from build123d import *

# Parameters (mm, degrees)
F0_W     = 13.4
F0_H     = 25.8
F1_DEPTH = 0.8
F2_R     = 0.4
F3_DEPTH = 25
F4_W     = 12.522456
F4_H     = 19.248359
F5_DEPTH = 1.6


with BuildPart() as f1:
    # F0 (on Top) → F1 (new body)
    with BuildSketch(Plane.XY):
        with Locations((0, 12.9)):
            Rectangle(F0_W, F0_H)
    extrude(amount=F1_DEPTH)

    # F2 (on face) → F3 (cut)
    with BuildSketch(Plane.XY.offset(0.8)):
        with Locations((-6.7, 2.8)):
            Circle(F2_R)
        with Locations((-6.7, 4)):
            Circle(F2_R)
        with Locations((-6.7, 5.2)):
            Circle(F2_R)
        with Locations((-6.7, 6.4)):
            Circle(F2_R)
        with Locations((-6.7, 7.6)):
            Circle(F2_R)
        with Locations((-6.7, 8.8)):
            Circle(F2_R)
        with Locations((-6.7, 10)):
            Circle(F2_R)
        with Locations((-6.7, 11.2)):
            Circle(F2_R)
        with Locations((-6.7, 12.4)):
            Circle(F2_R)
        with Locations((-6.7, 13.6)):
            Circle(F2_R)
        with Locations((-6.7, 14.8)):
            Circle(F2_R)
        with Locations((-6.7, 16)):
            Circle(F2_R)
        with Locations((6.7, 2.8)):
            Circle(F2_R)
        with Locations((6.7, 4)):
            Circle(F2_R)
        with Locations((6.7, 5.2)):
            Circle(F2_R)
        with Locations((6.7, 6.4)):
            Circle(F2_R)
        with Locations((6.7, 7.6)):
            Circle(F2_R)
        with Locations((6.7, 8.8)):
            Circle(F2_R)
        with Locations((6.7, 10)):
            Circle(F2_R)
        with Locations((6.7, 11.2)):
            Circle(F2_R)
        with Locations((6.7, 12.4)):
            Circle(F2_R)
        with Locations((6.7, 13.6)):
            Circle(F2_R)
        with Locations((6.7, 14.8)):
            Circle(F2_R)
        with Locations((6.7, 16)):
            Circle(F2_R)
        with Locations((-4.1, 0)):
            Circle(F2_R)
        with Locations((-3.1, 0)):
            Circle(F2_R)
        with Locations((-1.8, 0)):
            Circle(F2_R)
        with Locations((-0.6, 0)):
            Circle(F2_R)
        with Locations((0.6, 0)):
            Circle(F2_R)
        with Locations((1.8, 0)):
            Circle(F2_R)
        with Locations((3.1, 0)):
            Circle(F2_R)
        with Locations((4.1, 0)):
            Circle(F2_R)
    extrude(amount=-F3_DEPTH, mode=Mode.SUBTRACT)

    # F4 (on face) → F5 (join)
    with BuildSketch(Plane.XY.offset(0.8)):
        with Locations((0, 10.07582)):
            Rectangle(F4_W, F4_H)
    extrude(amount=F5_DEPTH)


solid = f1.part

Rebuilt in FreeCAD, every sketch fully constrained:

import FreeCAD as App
import Part
import Sketcher
Q = App.Units.Quantity

doc = App.newDocument("Part")
params = doc.addObject("Spreadsheet::Sheet", "Params")
for row, (alias, value) in enumerate([
    ("sketch1_width", "13.4 mm"),
    ("sketch1_height", "25.8 mm"),
    ("pad1_length", "0.8 mm"),
    ("sketch2_diameter", "0.8 mm"),
    ("pocket1_length", "25 mm"),
    ("pad2_length", "1.6 mm"),
], start=1):
    params.set(f"A{row}", alias)
    params.set(f"B{row}", "=" + value)
    params.setAlias(f"B{row}", alias)

body = doc.addObject("PartDesign::Body", "Body")

# Sketch on XY plane
sketch1 = doc.addObject("Sketcher::SketchObject", "Sketch")
body.addObject(sketch1)
sketch1.AttachmentSupport = (doc.XY_Plane, [""])
sketch1.MapMode = "FlatFace"
sketch1.addGeometry(Part.LineSegment(App.Vector(-7, 26, 0), App.Vector(-7, 0, 0)), False)
sketch1.addGeometry(Part.LineSegment(App.Vector(-7, 0, 0), App.Vector(7, 0, 0)), False)
sketch1.addGeometry(Part.LineSegment(App.Vector(7, 0, 0), App.Vector(7, 26, 0)), False)
sketch1.addGeometry(Part.LineSegment(App.Vector(7, 26, 0), App.Vector(-7, 26, 0)), False)
sketch1.addConstraint(Sketcher.Constraint("Coincident", 0, 2, 1, 1))
sketch1.addConstraint(Sketcher.Constraint("Coincident", 1, 2, 2, 1))
sketch1.addConstraint(Sketcher.Constraint("Coincident", 2, 2, 3, 1))
sketch1.addConstraint(Sketcher.Constraint("Coincident", 3, 2, 0, 1))
sketch1.addConstraint(Sketcher.Constraint("Vertical", 0))
sketch1.addConstraint(Sketcher.Constraint("Horizontal", 1))
sketch1.addConstraint(Sketcher.Constraint("Vertical", 2))
sketch1.addConstraint(Sketcher.Constraint("Horizontal", 3))
sketch1.addConstraint(Sketcher.Constraint("Symmetric", 0, 2, 1, 2, -1, 1))
sketch1.addConstraint(Sketcher.Constraint("DistanceX", 1, 1, 1, 2, Q("13.4 mm")))
sketch1.addConstraint(Sketcher.Constraint("DistanceY", 0, 2, 0, 1, Q("25.8 mm")))
sketch1.setExpression("Constraints[9]", "Params.sketch1_width")
sketch1.setExpression("Constraints[10]", "Params.sketch1_height")
pad1 = doc.addObject("PartDesign::Pad", "Pad")
body.addObject(pad1)
pad1.Profile = sketch1
pad1.setExpression("Length", "Params.pad1_length")

# Sketch on XY plane
sketch2 = doc.addObject("Sketcher::SketchObject", "Sketch001")
body.addObject(sketch2)
sketch2.AttachmentSupport = (doc.XY_Plane, [""])
sketch2.MapMode = "FlatFace"
sketch2.AttachmentOffset = App.Placement(App.Vector(0, 0, 0.8), App.Rotation())
sketch2.addGeometry(Part.Circle(App.Vector(-6.7, 2.8, 0), App.Vector(0, 0, 1), 0.4), False)
sketch2.addGeometry(Part.Circle(App.Vector(-6.7, 4, 0), App.Vector(0, 0, 1), 0.4), False)
sketch2.addGeometry(Part.Circle(App.Vector(-6.7, 5.2, 0), App.Vector(0, 0, 1), 0.4), False)
sketch2.addGeometry(Part.Circle(App.Vector(-6.7, 6.4, 0), App.Vector(0, 0, 1), 0.4), False)
sketch2.addGeometry(Part.Circle(App.Vector(-6.7, 7.6, 0), App.Vector(0, 0, 1), 0.4), False)
sketch2.addGeometry(Part.Circle(App.Vector(-6.7, 8.8, 0), App.Vector(0, 0, 1), 0.4), False)
sketch2.addGeometry(Part.Circle(App.Vector(-6.7, 10, 0), App.Vector(0, 0, 1), 0.4), False)
sketch2.addGeometry(Part.Circle(App.Vector(-6.7, 11.2, 0), App.Vector(0, 0, 1), 0.4), False)
sketch2.addGeometry(Part.Circle(App.Vector(-6.7, 12.4, 0), App.Vector(0, 0, 1), 0.4), False)
sketch2.addGeometry(Part.Circle(App.Vector(-6.7, 13.6, 0), App.Vector(0, 0, 1), 0.4), False)
sketch2.addGeometry(Part.Circle(App.Vector(-6.7, 14.8, 0), App.Vector(0, 0, 1), 0.4), False)
sketch2.addGeometry(Part.Circle(App.Vector(-6.7, 16, 0), App.Vector(0, 0, 1), 0.4), False)
sketch2.addGeometry(Part.Circle(App.Vector(6.7, 2.8, 0), App.Vector(0, 0, 1), 0.4), False)
sketch2.addGeometry(Part.Circle(App.Vector(6.7, 4, 0), App.Vector(0, 0, 1), 0.4), False)
sketch2.addGeometry(Part.Circle(App.Vector(6.7, 5.2, 0), App.Vector(0, 0, 1), 0.4), False)
sketch2.addGeometry(Part.Circle(App.Vector(6.7, 6.4, 0), App.Vector(0, 0, 1), 0.4), False)
sketch2.addGeometry(Part.Circle(App.Vector(6.7, 7.6, 0), App.Vector(0, 0, 1), 0.4), False)
sketch2.addGeometry(Part.Circle(App.Vector(6.7, 8.8, 0), App.Vector(0, 0, 1), 0.4), False)
sketch2.addGeometry(Part.Circle(App.Vector(6.7, 10, 0), App.Vector(0, 0, 1), 0.4), False)
sketch2.addGeometry(Part.Circle(App.Vector(6.7, 11.2, 0), App.Vector(0, 0, 1), 0.4), False)
sketch2.addGeometry(Part.Circle(App.Vector(6.7, 12.4, 0), App.Vector(0, 0, 1), 0.4), False)
sketch2.addGeometry(Part.Circle(App.Vector(6.7, 13.6, 0), App.Vector(0, 0, 1), 0.4), False)
sketch2.addGeometry(Part.Circle(App.Vector(6.7, 14.8, 0), App.Vector(0, 0, 1), 0.4), False)
sketch2.addGeometry(Part.Circle(App.Vector(6.7, 16, 0), App.Vector(0, 0, 1), 0.4), False)
sketch2.addGeometry(Part.Circle(App.Vector(-4.1, 0, 0), App.Vector(0, 0, 1), 0.4), False)
sketch2.addGeometry(Part.Circle(App.Vector(-3.1, 0, 0), App.Vector(0, 0, 1), 0.4), False)
sketch2.addGeometry(Part.Circle(App.Vector(-1.8, 0, 0), App.Vector(0, 0, 1), 0.4), False)
sketch2.addGeometry(Part.Circle(App.Vector(-0.6, 0, 0), App.Vector(0, 0, 1), 0.4), False)
sketch2.addGeometry(Part.Circle(App.Vector(0.6, 0, 0), App.Vector(0, 0, 1), 0.4), False)
sketch2.addGeometry(Part.Circle(App.Vector(1.8, 0, 0), App.Vector(0, 0, 1), 0.4), False)
sketch2.addGeometry(Part.Circle(App.Vector(3.1, 0, 0), App.Vector(0, 0, 1), 0.4), False)
sketch2.addGeometry(Part.Circle(App.Vector(4.1, 0, 0), App.Vector(0, 0, 1), 0.4), False)
sketch2.addConstraint(Sketcher.Constraint("Equal", 0, 1))
sketch2.addConstraint(Sketcher.Constraint("Equal", 1, 2))
sketch2.addConstraint(Sketcher.Constraint("Equal", 2, 3))
sketch2.addConstraint(Sketcher.Constraint("Equal", 3, 4))
sketch2.addConstraint(Sketcher.Constraint("Equal", 4, 5))
sketch2.addConstraint(Sketcher.Constraint("Equal", 5, 6))
sketch2.addConstraint(Sketcher.Constraint("Equal", 6, 7))
sketch2.addConstraint(Sketcher.Constraint("Equal", 7, 8))
sketch2.addConstraint(Sketcher.Constraint("Equal", 8, 9))
sketch2.addConstraint(Sketcher.Constraint("Equal", 9, 10))
sketch2.addConstraint(Sketcher.Constraint("Equal", 10, 11))
sketch2.addConstraint(Sketcher.Constraint("Equal", 11, 12))
sketch2.addConstraint(Sketcher.Constraint("Equal", 12, 13))
sketch2.addConstraint(Sketcher.Constraint("Equal", 13, 14))
sketch2.addConstraint(Sketcher.Constraint("Equal", 14, 15))
sketch2.addConstraint(Sketcher.Constraint("Equal", 15, 16))
sketch2.addConstraint(Sketcher.Constraint("Equal", 16, 17))
sketch2.addConstraint(Sketcher.Constraint("Equal", 17, 18))
sketch2.addConstraint(Sketcher.Constraint("Equal", 18, 19))
sketch2.addConstraint(Sketcher.Constraint("Equal", 19, 20))
sketch2.addConstraint(Sketcher.Constraint("Equal", 20, 21))
sketch2.addConstraint(Sketcher.Constraint("Equal", 21, 22))
sketch2.addConstraint(Sketcher.Constraint("Equal", 22, 23))
sketch2.addConstraint(Sketcher.Constraint("Equal", 23, 24))
sketch2.addConstraint(Sketcher.Constraint("Equal", 24, 25))
sketch2.addConstraint(Sketcher.Constraint("Equal", 25, 26))
sketch2.addConstraint(Sketcher.Constraint("Equal", 26, 27))
sketch2.addConstraint(Sketcher.Constraint("Equal", 27, 28))
sketch2.addConstraint(Sketcher.Constraint("Equal", 28, 29))
sketch2.addConstraint(Sketcher.Constraint("Equal", 29, 30))
sketch2.addConstraint(Sketcher.Constraint("Equal", 30, 31))
sketch2.addConstraint(Sketcher.Constraint("Symmetric", 27, 3, 28, 3, -1, 1))
sketch2.addConstraint(Sketcher.Constraint("Symmetric", 26, 3, 29, 3, -1, 1))
sketch2.addConstraint(Sketcher.Constraint("Symmetric", 25, 3, 30, 3, -1, 1))
sketch2.addConstraint(Sketcher.Constraint("Symmetric", 24, 3, 31, 3, -1, 1))
sketch2.addConstraint(Sketcher.Constraint("Symmetric", 0, 3, 12, 3, -2))
sketch2.addConstraint(Sketcher.Constraint("Symmetric", 1, 3, 13, 3, -2))
sketch2.addConstraint(Sketcher.Constraint("Symmetric", 2, 3, 14, 3, -2))
sketch2.addConstraint(Sketcher.Constraint("Symmetric", 3, 3, 15, 3, -2))
sketch2.addConstraint(Sketcher.Constraint("Symmetric", 4, 3, 16, 3, -2))
sketch2.addConstraint(Sketcher.Constraint("Symmetric", 5, 3, 17, 3, -2))
sketch2.addConstraint(Sketcher.Constraint("Symmetric", 6, 3, 18, 3, -2))
sketch2.addConstraint(Sketcher.Constraint("Symmetric", 7, 3, 19, 3, -2))
sketch2.addConstraint(Sketcher.Constraint("Symmetric", 8, 3, 20, 3, -2))
sketch2.addConstraint(Sketcher.Constraint("Symmetric", 9, 3, 21, 3, -2))
sketch2.addConstraint(Sketcher.Constraint("Symmetric", 10, 3, 22, 3, -2))
sketch2.addConstraint(Sketcher.Constraint("Symmetric", 11, 3, 23, 3, -2))
sketch2.addConstraint(Sketcher.Constraint("PointOnObject", 24, 3, -1))
sketch2.addConstraint(Sketcher.Constraint("PointOnObject", 25, 3, -1))
sketch2.addConstraint(Sketcher.Constraint("PointOnObject", 26, 3, -1))
sketch2.addConstraint(Sketcher.Constraint("PointOnObject", 27, 3, -1))
sketch2.addConstraint(Sketcher.Constraint("Vertical", 0, 3, 1, 3))
sketch2.addConstraint(Sketcher.Constraint("Vertical", 1, 3, 2, 3))
sketch2.addConstraint(Sketcher.Constraint("Vertical", 2, 3, 3, 3))
sketch2.addConstraint(Sketcher.Constraint("Vertical", 3, 3, 4, 3))
sketch2.addConstraint(Sketcher.Constraint("Vertical", 4, 3, 5, 3))
sketch2.addConstraint(Sketcher.Constraint("Vertical", 5, 3, 6, 3))
sketch2.addConstraint(Sketcher.Constraint("Vertical", 6, 3, 7, 3))
sketch2.addConstraint(Sketcher.Constraint("Vertical", 7, 3, 8, 3))
sketch2.addConstraint(Sketcher.Constraint("Vertical", 8, 3, 9, 3))
sketch2.addConstraint(Sketcher.Constraint("Vertical", 9, 3, 10, 3))
sketch2.addConstraint(Sketcher.Constraint("Vertical", 10, 3, 11, 3))
sketch2.addConstraint(Sketcher.Constraint("Diameter", 0, Q("0.8 mm")))
sketch2.addConstraint(Sketcher.Constraint("DistanceY", -1, 1, 1, 3, Q("4 mm")))
sketch2.addConstraint(Sketcher.Constraint("DistanceY", -1, 1, 6, 3, Q("10 mm")))
sketch2.addConstraint(Sketcher.Constraint("DistanceY", -1, 1, 11, 3, Q("16 mm")))
sketch2.addConstraint(Sketcher.Constraint("DistanceY", 0, 3, 5, 3, Q("6 mm")))
sketch2.addConstraint(Sketcher.Constraint("DistanceY", 2, 3, 7, 3, Q("6 mm")))
sketch2.addConstraint(Sketcher.Constraint("DistanceY", 3, 3, 8, 3, Q("6 mm")))
sketch2.addConstraint(Sketcher.Constraint("DistanceY", 4, 3, 9, 3, Q("6 mm")))
sketch2.addConstraint(Sketcher.Constraint("DistanceY", 5, 3, 10, 3, Q("6 mm")))
sketch2.addConstraint(Sketcher.Constraint("DistanceX", 24, 3, 25, 3, Q("1 mm")))
sketch2.addConstraint(Sketcher.Constraint("DistanceX", 0, 3, -1, 1, Q("6.7 mm")))
sketch2.addConstraint(Sketcher.Constraint("DistanceY", -1, 1, 0, 3, Q("2.8 mm")))
sketch2.addConstraint(Sketcher.Constraint("DistanceY", -1, 1, 2, 3, Q("5.2 mm")))
sketch2.addConstraint(Sketcher.Constraint("DistanceY", -1, 1, 3, 3, Q("6.4 mm")))
sketch2.addConstraint(Sketcher.Constraint("DistanceY", -1, 1, 4, 3, Q("7.6 mm")))
sketch2.addConstraint(Sketcher.Constraint("DistanceX", 24, 3, -1, 1, Q("4.1 mm")))
sketch2.addConstraint(Sketcher.Constraint("DistanceX", 26, 3, -1, 1, Q("1.8 mm")))
sketch2.addConstraint(Sketcher.Constraint("DistanceX", 27, 3, -1, 1, Q("0.6 mm")))
sketch2.setExpression("Constraints[62]", "Params.sketch2_diameter")
pocket1 = doc.addObject("PartDesign::Pocket", "Pocket")
body.addObject(pocket1)
pocket1.Profile = sketch2
pocket1.setExpression("Length", "Params.pocket1_length")

# Sketch on XY plane
sketch3 = doc.addObject("Sketcher::SketchObject", "Sketch002")
body.addObject(sketch3)
sketch3.AttachmentSupport = (doc.XY_Plane, [""])
sketch3.MapMode = "FlatFace"
sketch3.AttachmentOffset = App.Placement(App.Vector(0, 0, 0.8), App.Rotation())
sketch3.addGeometry(Part.LineSegment(App.Vector(-6, 20, 0), App.Vector(-6, 0, 0)), False)
sketch3.addGeometry(Part.LineSegment(App.Vector(-6, 0, 0), App.Vector(6, 0, 0)), False)
sketch3.addGeometry(Part.LineSegment(App.Vector(6, 0, 0), App.Vector(6, 20, 0)), False)
sketch3.addGeometry(Part.LineSegment(App.Vector(6, 20, 0), App.Vector(-6, 20, 0)), False)
sketch3.addConstraint(Sketcher.Constraint("Coincident", 0, 2, 1, 1))
sketch3.addConstraint(Sketcher.Constraint("Coincident", 1, 2, 2, 1))
sketch3.addConstraint(Sketcher.Constraint("Coincident", 2, 2, 3, 1))
sketch3.addConstraint(Sketcher.Constraint("Coincident", 3, 2, 0, 1))
sketch3.addConstraint(Sketcher.Constraint("Vertical", 0))
sketch3.addConstraint(Sketcher.Constraint("Horizontal", 1))
sketch3.addConstraint(Sketcher.Constraint("Vertical", 2))
sketch3.addConstraint(Sketcher.Constraint("Horizontal", 3))
sketch3.addConstraint(Sketcher.Constraint("DistanceY", -1, 1, 2, 2, Q("19.7 mm")))
sketch3.addConstraint(Sketcher.Constraint("DistanceY", 0, 2, 0, 1, Q("19.248359 mm")))
sketch3.addConstraint(Sketcher.Constraint("DistanceX", 1, 1, 1, 2, Q("12.522456 mm")))
sketch3.addConstraint(Sketcher.Constraint("DistanceX", 0, 2, -1, 1, Q("6.261228 mm")))
pad2 = doc.addObject("PartDesign::Pad", "Pad001")
body.addObject(pad2)
pad2.Profile = sketch3
pad2.setExpression("Length", "Params.pad2_length")

doc.recompute()
